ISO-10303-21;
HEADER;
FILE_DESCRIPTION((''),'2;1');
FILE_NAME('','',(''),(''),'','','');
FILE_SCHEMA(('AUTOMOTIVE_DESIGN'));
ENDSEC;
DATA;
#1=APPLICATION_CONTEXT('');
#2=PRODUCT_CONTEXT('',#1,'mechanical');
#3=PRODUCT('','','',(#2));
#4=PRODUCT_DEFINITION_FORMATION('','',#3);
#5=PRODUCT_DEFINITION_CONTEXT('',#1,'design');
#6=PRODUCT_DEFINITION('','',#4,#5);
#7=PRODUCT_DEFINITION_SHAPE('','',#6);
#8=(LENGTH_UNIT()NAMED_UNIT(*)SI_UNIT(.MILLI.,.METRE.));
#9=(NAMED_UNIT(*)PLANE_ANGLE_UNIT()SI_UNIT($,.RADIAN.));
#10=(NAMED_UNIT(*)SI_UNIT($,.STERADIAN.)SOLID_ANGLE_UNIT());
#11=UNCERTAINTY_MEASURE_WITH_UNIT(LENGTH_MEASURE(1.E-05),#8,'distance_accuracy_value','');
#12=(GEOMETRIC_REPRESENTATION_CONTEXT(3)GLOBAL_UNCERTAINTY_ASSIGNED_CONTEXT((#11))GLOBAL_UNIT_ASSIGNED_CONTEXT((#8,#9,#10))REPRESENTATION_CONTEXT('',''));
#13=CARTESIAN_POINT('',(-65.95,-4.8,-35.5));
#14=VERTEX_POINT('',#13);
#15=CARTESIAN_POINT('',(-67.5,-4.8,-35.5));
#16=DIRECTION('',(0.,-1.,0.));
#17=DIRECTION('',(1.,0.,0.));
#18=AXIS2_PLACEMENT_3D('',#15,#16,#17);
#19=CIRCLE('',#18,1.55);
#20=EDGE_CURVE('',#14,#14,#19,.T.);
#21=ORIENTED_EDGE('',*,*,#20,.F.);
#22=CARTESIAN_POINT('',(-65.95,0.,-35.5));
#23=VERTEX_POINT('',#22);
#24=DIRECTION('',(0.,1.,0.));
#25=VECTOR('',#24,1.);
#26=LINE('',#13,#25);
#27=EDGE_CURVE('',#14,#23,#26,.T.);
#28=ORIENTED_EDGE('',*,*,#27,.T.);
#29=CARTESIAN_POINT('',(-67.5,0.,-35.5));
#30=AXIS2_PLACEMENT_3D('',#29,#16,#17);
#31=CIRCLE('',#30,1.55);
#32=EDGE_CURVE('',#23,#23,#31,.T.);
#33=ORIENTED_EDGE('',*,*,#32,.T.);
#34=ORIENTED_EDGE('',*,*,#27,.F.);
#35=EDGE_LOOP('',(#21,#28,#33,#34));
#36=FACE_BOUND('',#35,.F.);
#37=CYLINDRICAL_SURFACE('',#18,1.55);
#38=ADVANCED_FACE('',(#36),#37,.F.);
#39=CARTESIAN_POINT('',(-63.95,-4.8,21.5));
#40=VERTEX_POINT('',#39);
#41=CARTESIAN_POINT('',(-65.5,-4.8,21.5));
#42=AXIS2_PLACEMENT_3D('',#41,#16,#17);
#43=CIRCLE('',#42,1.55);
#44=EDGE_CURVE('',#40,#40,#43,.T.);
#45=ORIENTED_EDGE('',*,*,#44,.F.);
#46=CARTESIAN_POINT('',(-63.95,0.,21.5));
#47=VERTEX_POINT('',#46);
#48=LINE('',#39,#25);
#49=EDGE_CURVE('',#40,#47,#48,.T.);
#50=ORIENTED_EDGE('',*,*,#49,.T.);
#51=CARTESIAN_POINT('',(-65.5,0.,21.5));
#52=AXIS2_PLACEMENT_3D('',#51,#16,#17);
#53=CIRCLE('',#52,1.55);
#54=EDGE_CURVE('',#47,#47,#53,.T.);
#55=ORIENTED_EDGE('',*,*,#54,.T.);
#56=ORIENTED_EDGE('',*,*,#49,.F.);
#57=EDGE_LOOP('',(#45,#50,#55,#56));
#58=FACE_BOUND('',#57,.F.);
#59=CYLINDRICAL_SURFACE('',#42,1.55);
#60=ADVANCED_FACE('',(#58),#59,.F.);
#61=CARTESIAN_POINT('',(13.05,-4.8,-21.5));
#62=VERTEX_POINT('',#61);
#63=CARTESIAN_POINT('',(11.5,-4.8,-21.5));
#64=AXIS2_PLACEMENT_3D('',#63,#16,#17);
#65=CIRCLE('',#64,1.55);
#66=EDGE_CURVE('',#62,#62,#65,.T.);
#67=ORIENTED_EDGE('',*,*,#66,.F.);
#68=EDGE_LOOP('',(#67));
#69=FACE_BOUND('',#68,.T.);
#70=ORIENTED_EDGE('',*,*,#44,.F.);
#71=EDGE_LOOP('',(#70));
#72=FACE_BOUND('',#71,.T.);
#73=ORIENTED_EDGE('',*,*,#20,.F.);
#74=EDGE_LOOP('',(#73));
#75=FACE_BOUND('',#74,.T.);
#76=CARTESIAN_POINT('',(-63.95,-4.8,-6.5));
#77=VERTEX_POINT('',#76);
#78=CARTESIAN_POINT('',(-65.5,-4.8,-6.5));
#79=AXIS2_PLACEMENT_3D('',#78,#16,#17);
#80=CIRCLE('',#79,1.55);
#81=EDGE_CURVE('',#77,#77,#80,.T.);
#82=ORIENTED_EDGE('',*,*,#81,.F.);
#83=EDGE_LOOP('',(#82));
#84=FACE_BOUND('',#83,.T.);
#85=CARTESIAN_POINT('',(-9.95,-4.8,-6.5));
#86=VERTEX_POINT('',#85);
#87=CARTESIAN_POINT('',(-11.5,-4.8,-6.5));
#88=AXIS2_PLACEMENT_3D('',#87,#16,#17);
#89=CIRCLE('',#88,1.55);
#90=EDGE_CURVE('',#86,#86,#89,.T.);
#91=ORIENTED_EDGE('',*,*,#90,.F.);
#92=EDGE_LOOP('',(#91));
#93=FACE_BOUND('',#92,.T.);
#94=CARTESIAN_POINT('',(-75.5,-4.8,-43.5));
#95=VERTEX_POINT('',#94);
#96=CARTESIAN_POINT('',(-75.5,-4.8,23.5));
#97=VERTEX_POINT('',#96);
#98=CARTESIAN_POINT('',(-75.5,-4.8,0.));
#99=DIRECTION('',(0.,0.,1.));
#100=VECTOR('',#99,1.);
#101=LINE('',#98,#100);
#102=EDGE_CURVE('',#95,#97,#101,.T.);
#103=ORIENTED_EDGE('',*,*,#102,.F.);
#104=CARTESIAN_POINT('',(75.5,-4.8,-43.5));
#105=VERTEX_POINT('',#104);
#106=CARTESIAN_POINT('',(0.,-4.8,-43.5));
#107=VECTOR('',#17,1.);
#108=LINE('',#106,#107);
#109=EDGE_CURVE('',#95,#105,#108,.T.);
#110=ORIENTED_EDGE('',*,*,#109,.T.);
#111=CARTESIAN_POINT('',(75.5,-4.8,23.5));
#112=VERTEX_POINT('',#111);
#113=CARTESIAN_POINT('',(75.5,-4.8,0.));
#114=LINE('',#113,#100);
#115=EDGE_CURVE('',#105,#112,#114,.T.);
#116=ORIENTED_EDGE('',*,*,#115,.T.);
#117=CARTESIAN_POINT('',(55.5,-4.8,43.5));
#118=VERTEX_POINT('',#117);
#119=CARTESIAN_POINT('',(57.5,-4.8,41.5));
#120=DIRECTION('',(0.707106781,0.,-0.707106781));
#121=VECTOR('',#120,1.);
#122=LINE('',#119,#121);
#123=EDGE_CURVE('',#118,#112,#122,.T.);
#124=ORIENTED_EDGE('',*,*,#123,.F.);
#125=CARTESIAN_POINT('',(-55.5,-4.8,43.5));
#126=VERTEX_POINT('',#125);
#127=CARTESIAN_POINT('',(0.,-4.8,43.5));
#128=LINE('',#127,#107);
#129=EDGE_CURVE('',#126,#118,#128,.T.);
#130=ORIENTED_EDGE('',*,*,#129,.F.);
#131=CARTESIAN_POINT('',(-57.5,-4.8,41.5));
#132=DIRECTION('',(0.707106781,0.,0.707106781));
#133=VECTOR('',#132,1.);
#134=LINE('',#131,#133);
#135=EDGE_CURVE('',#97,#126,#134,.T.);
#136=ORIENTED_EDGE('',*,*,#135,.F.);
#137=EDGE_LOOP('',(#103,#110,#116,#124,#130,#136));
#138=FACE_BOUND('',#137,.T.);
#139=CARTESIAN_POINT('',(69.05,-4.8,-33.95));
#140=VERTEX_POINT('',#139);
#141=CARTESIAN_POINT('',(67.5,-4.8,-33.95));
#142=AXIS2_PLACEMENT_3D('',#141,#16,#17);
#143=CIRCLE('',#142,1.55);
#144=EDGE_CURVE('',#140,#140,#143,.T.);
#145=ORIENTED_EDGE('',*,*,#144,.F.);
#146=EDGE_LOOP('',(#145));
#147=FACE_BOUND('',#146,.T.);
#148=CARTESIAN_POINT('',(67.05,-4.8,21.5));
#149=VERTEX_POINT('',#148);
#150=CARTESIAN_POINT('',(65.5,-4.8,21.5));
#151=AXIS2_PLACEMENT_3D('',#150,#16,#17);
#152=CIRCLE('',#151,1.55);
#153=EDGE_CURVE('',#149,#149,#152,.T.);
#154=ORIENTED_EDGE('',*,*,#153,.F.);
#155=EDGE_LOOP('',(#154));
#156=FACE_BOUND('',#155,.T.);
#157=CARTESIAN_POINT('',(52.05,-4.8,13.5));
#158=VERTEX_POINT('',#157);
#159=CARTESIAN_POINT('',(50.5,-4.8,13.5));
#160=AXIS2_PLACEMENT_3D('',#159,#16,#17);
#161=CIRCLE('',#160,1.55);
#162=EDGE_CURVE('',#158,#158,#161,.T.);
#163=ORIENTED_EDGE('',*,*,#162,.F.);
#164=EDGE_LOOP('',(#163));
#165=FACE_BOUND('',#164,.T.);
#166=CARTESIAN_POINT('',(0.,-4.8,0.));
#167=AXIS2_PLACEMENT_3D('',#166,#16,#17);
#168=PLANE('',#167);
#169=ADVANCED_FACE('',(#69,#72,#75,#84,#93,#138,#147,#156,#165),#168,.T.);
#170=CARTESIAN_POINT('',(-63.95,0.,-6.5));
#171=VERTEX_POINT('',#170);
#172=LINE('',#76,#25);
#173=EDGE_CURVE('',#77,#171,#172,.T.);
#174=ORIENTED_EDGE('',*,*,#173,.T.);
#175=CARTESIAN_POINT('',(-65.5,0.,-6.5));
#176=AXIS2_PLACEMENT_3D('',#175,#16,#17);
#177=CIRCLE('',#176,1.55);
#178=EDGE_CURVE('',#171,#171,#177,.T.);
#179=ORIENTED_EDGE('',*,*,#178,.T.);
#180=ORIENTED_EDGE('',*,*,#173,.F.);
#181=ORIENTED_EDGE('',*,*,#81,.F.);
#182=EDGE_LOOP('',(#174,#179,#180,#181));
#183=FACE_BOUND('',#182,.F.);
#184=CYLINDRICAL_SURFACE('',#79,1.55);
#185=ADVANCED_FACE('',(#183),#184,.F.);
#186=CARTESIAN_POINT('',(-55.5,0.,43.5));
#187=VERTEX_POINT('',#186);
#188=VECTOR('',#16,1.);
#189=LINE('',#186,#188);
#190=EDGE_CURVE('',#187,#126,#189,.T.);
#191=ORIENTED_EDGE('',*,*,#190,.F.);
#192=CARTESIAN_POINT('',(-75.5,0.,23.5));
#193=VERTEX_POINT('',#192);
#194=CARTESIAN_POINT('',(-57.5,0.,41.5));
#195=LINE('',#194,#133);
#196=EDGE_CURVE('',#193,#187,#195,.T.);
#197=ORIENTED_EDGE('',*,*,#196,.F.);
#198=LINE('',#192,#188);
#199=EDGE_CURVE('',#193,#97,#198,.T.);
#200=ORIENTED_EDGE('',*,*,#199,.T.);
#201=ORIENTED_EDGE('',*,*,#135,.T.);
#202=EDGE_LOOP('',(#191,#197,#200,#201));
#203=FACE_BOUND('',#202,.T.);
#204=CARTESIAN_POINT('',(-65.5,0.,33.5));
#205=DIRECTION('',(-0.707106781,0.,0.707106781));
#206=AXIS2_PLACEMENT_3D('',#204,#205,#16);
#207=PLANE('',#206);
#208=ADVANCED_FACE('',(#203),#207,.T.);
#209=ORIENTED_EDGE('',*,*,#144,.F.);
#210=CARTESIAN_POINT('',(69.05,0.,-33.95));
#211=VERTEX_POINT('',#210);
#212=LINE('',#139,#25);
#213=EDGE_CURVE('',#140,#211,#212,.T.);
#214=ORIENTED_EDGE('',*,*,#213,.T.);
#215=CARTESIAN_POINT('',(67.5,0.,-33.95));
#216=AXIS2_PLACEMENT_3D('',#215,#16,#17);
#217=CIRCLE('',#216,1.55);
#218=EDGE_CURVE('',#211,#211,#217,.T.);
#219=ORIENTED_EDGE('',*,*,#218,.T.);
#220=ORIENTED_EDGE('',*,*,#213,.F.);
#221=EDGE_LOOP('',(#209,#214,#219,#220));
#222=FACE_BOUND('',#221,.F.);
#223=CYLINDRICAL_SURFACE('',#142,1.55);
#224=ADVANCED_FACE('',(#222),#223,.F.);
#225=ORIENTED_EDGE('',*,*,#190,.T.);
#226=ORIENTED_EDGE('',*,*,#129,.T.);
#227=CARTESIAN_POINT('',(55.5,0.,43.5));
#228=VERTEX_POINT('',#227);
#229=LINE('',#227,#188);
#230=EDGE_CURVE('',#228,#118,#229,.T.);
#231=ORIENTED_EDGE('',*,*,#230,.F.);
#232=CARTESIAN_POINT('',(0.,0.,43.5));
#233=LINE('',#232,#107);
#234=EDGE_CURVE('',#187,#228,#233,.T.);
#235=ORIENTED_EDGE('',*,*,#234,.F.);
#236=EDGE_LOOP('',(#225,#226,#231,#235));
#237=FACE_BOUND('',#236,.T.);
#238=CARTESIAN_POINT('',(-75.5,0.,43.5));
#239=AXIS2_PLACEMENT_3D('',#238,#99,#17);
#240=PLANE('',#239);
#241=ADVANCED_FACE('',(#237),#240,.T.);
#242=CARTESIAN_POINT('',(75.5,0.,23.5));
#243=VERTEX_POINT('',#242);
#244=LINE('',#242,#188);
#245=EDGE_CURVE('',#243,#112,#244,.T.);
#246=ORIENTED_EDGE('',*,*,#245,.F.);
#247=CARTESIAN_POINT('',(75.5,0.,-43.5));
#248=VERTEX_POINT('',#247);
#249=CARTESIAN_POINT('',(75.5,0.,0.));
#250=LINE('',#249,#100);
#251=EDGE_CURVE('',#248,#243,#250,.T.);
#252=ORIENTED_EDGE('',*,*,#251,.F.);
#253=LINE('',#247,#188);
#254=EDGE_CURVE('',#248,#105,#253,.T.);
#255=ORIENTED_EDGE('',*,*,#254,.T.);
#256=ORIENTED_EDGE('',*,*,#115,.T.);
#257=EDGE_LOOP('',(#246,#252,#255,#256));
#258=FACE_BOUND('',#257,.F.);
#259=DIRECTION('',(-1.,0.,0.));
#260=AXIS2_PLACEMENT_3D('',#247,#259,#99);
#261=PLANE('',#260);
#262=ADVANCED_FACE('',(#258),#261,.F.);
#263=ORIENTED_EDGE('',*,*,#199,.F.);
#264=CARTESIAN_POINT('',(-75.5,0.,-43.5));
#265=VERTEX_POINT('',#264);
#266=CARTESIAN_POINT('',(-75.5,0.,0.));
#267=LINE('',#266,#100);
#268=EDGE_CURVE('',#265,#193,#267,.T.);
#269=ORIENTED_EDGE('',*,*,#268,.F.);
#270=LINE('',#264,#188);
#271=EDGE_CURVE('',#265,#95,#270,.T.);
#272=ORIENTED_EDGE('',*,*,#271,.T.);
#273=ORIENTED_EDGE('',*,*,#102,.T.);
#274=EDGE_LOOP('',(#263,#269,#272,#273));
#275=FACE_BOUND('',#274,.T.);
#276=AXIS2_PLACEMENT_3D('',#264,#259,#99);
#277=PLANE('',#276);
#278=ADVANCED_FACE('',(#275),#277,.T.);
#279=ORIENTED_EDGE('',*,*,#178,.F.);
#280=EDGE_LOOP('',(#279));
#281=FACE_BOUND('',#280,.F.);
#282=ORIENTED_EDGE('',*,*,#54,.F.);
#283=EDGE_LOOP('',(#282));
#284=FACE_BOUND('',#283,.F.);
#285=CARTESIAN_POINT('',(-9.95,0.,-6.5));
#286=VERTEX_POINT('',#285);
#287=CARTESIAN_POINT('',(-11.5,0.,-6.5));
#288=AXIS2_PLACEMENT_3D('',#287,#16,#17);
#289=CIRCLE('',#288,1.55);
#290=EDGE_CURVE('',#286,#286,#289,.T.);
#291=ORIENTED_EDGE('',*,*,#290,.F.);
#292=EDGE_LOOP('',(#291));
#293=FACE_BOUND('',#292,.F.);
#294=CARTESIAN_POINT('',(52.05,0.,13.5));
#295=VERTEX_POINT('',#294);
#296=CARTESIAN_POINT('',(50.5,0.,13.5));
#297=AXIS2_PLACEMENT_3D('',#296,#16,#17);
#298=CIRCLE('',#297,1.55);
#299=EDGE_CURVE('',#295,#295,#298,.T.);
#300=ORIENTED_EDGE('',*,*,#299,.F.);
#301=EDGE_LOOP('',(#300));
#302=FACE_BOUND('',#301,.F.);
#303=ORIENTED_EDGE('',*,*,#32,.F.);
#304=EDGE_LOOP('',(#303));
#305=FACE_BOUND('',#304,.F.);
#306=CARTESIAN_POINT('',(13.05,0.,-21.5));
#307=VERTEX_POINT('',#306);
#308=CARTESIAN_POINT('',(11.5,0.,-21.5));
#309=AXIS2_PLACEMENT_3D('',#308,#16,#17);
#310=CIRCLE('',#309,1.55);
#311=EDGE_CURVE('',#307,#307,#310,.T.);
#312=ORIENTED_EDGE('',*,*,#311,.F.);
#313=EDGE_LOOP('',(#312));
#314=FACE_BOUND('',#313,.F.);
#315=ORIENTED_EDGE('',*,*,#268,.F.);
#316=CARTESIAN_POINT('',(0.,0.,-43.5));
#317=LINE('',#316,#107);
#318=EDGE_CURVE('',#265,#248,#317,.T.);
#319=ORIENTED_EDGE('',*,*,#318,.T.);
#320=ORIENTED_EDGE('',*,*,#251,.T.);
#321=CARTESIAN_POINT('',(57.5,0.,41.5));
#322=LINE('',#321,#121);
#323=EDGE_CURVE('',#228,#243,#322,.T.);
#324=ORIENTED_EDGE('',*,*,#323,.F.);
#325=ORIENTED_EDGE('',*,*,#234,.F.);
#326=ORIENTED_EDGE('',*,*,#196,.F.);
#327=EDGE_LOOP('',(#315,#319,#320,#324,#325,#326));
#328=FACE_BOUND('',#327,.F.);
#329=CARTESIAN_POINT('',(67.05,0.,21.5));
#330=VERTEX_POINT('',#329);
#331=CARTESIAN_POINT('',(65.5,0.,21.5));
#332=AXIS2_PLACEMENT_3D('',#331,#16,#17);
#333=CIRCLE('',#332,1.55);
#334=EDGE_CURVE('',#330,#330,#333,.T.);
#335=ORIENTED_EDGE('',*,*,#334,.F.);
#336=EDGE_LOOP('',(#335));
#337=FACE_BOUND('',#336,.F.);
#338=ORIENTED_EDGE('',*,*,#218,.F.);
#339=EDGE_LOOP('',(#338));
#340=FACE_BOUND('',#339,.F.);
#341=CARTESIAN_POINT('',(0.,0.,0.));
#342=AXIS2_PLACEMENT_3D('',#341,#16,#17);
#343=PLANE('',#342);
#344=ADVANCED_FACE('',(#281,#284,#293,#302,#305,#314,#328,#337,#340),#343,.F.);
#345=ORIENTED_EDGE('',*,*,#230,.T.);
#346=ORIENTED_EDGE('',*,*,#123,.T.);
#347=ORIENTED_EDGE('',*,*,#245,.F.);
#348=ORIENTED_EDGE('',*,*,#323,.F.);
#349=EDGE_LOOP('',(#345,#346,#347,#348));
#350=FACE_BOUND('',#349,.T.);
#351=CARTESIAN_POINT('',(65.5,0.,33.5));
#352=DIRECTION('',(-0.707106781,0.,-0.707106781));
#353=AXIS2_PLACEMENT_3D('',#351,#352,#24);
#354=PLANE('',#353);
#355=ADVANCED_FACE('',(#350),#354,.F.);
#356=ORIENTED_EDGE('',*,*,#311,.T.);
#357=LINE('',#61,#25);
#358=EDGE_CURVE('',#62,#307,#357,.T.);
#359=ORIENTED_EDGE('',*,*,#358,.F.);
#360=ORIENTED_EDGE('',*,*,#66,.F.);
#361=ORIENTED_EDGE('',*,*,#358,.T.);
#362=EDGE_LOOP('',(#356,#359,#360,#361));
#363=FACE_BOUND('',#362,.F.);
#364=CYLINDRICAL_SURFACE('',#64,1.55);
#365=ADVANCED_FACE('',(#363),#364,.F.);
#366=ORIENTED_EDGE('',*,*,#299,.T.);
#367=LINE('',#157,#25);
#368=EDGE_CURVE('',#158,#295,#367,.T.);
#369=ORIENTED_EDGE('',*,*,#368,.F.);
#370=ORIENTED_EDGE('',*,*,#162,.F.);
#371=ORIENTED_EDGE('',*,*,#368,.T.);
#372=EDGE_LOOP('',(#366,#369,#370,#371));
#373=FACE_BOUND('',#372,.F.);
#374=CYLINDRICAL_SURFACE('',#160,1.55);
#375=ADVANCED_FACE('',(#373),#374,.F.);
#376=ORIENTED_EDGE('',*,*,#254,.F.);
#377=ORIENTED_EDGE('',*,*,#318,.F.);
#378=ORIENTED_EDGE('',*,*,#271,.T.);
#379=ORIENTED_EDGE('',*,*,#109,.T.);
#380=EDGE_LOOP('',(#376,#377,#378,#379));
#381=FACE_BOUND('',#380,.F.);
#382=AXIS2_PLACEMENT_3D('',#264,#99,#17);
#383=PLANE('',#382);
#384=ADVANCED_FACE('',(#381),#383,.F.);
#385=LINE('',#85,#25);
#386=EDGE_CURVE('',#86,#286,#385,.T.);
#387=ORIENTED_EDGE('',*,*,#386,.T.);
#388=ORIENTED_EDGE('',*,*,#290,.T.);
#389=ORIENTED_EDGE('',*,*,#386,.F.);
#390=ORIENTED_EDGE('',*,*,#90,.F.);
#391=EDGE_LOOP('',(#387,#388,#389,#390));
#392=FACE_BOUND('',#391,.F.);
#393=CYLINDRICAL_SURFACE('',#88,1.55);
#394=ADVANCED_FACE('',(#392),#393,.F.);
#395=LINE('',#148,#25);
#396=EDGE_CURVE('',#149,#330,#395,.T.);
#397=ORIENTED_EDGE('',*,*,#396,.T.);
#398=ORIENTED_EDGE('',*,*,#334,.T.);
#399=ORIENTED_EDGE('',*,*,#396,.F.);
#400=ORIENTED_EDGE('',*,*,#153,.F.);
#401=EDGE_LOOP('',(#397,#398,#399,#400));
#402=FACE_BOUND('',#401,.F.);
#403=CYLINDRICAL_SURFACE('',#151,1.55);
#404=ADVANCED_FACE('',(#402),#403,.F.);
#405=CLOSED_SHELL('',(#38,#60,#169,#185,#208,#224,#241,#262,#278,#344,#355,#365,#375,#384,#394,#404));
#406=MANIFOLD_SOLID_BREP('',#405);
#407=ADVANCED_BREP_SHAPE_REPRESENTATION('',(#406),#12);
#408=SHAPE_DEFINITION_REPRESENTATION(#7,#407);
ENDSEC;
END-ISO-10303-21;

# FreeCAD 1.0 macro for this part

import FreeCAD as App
import Part
import Sketcher
from FreeCAD import Vector


def edges_at(feature, points):
    """Names of the edges that pass closest to the given points."""
    edges = feature.Shape.Edges
    near = lambda p: min(range(len(edges)), key=lambda i: edges[i].distToShape(Part.Vertex(*p))[0])
    return sorted({f"Edge{near(p) + 1}" for p in points})

doc = App.newDocument("Part")
params = doc.addObject("Spreadsheet::Sheet", "Params")
for row, (alias, value) in enumerate([
    ("sketch1_width", "151 mm"),
    ("sketch1_height", "87 mm"),
    ("pad1_length", "4.8 mm"),
    ("sketch2_diameter", "3.1 mm"),
    ("pocket1_length", "4.8 mm"),
    ("sketch3_diameter", "3.1 mm"),
    ("pocket2_length", "4.8 mm"),
    ("chamfer_size", "20 mm"),
    ("chamfer2_size", "20 mm"),
], start=1):
    params.set(f"A{row}", alias)
    params.set(f"B{row}", "=" + value)
    params.setAlias(f"B{row}", alias)

body = doc.addObject("PartDesign::Body", "Body")

# Sketch on XZ plane
sketch1 = body.newObject("Sketcher::SketchObject", "Sketch")
sketch1.AttachmentSupport = (doc.getObject("XZ_Plane"), [""])
sketch1.MapMode = "FlatFace"
sketch1.addGeometry([
    Part.LineSegment(Vector(-76, 44, 0), Vector(-76, -44, 0)),
    Part.LineSegment(Vector(-76, -44, 0), Vector(76, -44, 0)),
    Part.LineSegment(Vector(76, -44, 0), Vector(76, 44, 0)),
    Part.LineSegment(Vector(76, 44, 0), Vector(-76, 44, 0)),
], False)
sketch1.addConstraint([
    Sketcher.Constraint("Coincident", 0, 2, 1, 1),
    Sketcher.Constraint("Coincident", 1, 2, 2, 1),
    Sketcher.Constraint("Coincident", 2, 2, 3, 1),
    Sketcher.Constraint("Coincident", 3, 2, 0, 1),
    Sketcher.Constraint("Vertical", 0),
    Sketcher.Constraint("Horizontal", 1),
    Sketcher.Constraint("Vertical", 2),
    Sketcher.Constraint("Horizontal", 3),
    Sketcher.Constraint("Symmetric", 0, 2, 2, 2, -1, 1),
    Sketcher.Constraint("DistanceX", 1, 1, 1, 2, 151.0),
    Sketcher.Constraint("DistanceY", 0, 2, 0, 1, 87.0),
])
sketch1.setExpression("Constraints[9]", "Params.sketch1_width")
sketch1.setExpression("Constraints[10]", "Params.sketch1_height")
pad1 = body.newObject("PartDesign::Pad", "Pad")
pad1.Profile = sketch1
pad1.setExpression("Length", "Params.pad1_length")

# Sketch on XZ plane
sketch2 = body.newObject("Sketcher::SketchObject", "Sketch001")
sketch2.AttachmentSupport = (doc.getObject("XZ_Plane"), [""])
sketch2.MapMode = "FlatFace"
sketch2.AttachmentOffset = App.Placement(Vector(0, 0, 4.8), App.Rotation())
sketch2.addGeometry(Part.Circle(Vector(-65.5, -6.5, 0), Vector(0, 0, 1), 1.6), False)
sketch2.addConstraint([
    Sketcher.Constraint("Diameter", 0, 3.1),
    Sketcher.Constraint("DistanceX", 0, 3, -1, 1, 65.5),
    Sketcher.Constraint("DistanceY", 0, 3, -1, 1, 6.5),
])
sketch2.setExpression("Constraints[0]", "Params.sketch2_diameter")
pocket1 = body.newObject("PartDesign::Pocket", "Pocket")
pocket1.Profile = sketch2
pocket1.setExpression("Length", "Params.pocket1_length")

# Sketch on XZ plane
sketch3 = body.newObject("Sketcher::SketchObject", "Sketch002")
sketch3.AttachmentSupport = (doc.getObject("XZ_Plane"), [""])
sketch3.MapMode = "FlatFace"
sketch3.AttachmentOffset = App.Placement(Vector(0, 0, 4.8), App.Rotation())
sketch3.addGeometry([
    Part.Circle(Vector(-65.5, 21.5, 0), Vector(0, 0, 1), 1.6),  # 0
    Part.Circle(Vector(65.5, 21.5, 0), Vector(0, 0, 1), 1.6),  # 1
    Part.Circle(Vector(-67.5, -35.5, 0), Vector(0, 0, 1), 1.6),  # 2
    Part.Circle(Vector(67.5, -34, 0), Vector(0, 0, 1), 1.6),  # 3
    Part.Circle(Vector(50.5, 13.5, 0), Vector(0, 0, 1), 1.6),  # 4
    Part.Circle(Vector(11.5, -21.5, 0), Vector(0, 0, 1), 1.6),  # 5
    Part.Circle(Vector(-65.5, -6.5, 0), Vector(0, 0, 1), 1.6),  # 6
    Part.Circle(Vector(-11.5, -6.5, 0), Vector(0, 0, 1), 1.6),  # 7
], False)
sketch3.addConstraint([
    Sketcher.Constraint("Equal", 0, 1),
    Sketcher.Constraint("Equal", 1, 2),
    Sketcher.Constraint("Equal", 2, 3),
    Sketcher.Constraint("Equal", 3, 4),
    Sketcher.Constraint("Equal", 4, 5),
    Sketcher.Constraint("Equal", 5, 6),
    Sketcher.Constraint("Equal", 6, 7),
    Sketcher.Constraint("Symmetric", 0, 3, 1, 3, -2),
    Sketcher.Constraint("Horizontal", 6, 3, 7, 3),
    Sketcher.Constraint("Vertical", 0, 3, 6, 3),
    Sketcher.Constraint("Diameter", 0, 3.1),
    Sketcher.Constraint("DistanceX", 0, 3, 1, 3, 131.0),
    Sketcher.Constraint("DistanceX", 2, 3, 0, 3, 2.0),
    Sketcher.Constraint("DistanceY", 2, 3, 0, 3, 57.0),
    Sketcher.Constraint("DistanceX", 1, 3, 3, 3, 2.0),
    Sketcher.Constraint("DistanceX", 4, 3, 1, 3, 15.0),
    Sketcher.Constraint("DistanceY", 4, 3, 1, 3, 8.0),
    Sketcher.Constraint("DistanceX", 5, 3, 4, 3, 39.0),
    Sketcher.Constraint("DistanceY", 5, 3, 4, 3, 35.0),
    Sketcher.Constraint("DistanceY", 6, 3, 0, 3, 28.0),
    Sketcher.Constraint("DistanceX", 7, 3, 5, 3, 23.0),
    Sketcher.Constraint("DistanceY", -1, 1, 0, 3, 21.5),
    Sketcher.Constraint("DistanceY", 3, 3, -1, 1, 33.95),
])
sketch3.setExpression("Constraints[10]", "Params.sketch3_diameter")
pocket2 = body.newObject("PartDesign::Pocket", "Pocket001")
pocket2.Profile = sketch3
pocket2.setExpression("Length", "Params.pocket2_length")
doc.recompute()

chamfer = body.newObject("PartDesign::Chamfer", "Chamfer")
chamfer.Base = (pocket2, edges_at(pocket2, [(-75.5, -2.4, 43.5)]))
chamfer.setExpression("Size", "Params.chamfer_size")
doc.recompute()

chamfer2 = body.newObject("PartDesign::Chamfer", "Chamfer001")
chamfer2.Base = (chamfer, edges_at(chamfer, [(75.5, -2.4, 43.5)]))
chamfer2.setExpression("Size", "Params.chamfer2_size")

doc.recompute()
